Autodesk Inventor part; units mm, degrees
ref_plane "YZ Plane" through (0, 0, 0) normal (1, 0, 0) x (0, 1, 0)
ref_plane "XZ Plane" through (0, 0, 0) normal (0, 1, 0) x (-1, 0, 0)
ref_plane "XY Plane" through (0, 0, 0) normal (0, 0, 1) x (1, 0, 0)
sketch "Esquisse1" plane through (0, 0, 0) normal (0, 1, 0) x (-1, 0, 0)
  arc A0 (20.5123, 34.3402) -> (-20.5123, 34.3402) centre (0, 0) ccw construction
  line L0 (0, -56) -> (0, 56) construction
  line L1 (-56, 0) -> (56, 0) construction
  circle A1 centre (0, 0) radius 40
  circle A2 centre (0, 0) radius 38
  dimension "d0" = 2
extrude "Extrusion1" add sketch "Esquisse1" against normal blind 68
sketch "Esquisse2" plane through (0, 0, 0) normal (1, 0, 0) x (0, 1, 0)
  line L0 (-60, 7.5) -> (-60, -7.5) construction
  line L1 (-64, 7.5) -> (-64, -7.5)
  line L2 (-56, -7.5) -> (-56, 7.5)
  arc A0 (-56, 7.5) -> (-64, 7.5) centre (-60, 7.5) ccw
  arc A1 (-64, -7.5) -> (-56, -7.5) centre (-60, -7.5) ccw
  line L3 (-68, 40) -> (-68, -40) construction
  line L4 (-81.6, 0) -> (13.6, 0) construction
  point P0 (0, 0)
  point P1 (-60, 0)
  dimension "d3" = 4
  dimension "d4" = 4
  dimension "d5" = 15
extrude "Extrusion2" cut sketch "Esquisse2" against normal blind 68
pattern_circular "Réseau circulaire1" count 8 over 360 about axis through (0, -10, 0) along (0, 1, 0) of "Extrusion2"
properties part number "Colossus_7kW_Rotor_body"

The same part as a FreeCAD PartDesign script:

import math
import FreeCAD as App
import Part
import Sketcher

V = App.Vector
Q = App.Units.Quantity

doc = App.newDocument("Part")
body = doc.addObject("PartDesign::Body", "Body")

# Sketch on XZ plane
sketch1 = body.newObject("Sketcher::SketchObject", "Sketch")
sketch1.AttachmentSupport = (doc.getObject("XZ_Plane"), [""])
sketch1.MapMode = "FlatFace"
sketch1.addGeometry(Part.Circle(V(0, 0, 0), V(0, 0, 1), 40), False)
sketch1.addGeometry(Part.Circle(V(0, 0, 0), V(0, 0, 1), 38), False)
sketch1.addConstraint(Sketcher.Constraint("Coincident", 0, 3, -1, 1))
sketch1.addConstraint(Sketcher.Constraint("Coincident", 1, 3, -1, 1))
sketch1.addConstraint(Sketcher.Constraint("Diameter", 0, Q("80 mm")))
sketch1.addConstraint(Sketcher.Constraint("Diameter", 1, Q("76 mm")))
pad1 = body.newObject("PartDesign::Pad", "Pad")
pad1.Profile = sketch1
pad1.Length = 68

# Sketch on YZ plane
sketch2 = body.newObject("Sketcher::SketchObject", "Sketch001")
sketch2.AttachmentSupport = (doc.getObject("YZ_Plane"), [""])
sketch2.MapMode = "FlatFace"
sketch2.addGeometry(Part.ArcOfCircle(Part.Circle(V(-60, 7.5, 0), V(0, 0, 1), 4), math.radians(0), math.radians(180)), False)
sketch2.addGeometry(Part.LineSegment(V(-64, 7.5, 0), V(-64, -7.5, 0)), False)
sketch2.addGeometry(Part.ArcOfCircle(Part.Circle(V(-60, -7.5, 0), V(0, 0, 1), 4), math.radians(180), math.radians(360)), False)
sketch2.addGeometry(Part.LineSegment(V(-56, -7.5, 0), V(-56, 7.5, 0)), False)
sketch2.addConstraint(Sketcher.Constraint("Tangent", 0, 2, 1, 1))
sketch2.addConstraint(Sketcher.Constraint("Tangent", 1, 2, 2, 1))
sketch2.addConstraint(Sketcher.Constraint("Tangent", 2, 2, 3, 1))
sketch2.addConstraint(Sketcher.Constraint("Tangent", 3, 2, 0, 1))
sketch2.addConstraint(Sketcher.Constraint("Vertical", 1))
sketch2.addConstraint(Sketcher.Constraint("Vertical", 3))
sketch2.addConstraint(Sketcher.Constraint("Radius", 0, Q("4 mm")))
sketch2.addConstraint(Sketcher.Constraint("DistanceY", 1, 2, 1, 1, Q("15 mm")))
sketch2.addConstraint(Sketcher.Constraint("DistanceX", 0, 3, -1, 1, Q("60 mm")))
sketch2.addConstraint(Sketcher.Constraint("DistanceY", -1, 1, 0, 3, Q("7.5 mm")))
pocket1 = body.newObject("PartDesign::Pocket", "Pocket")
pocket1.Profile = sketch2
pocket1.Length = 68
doc.recompute()

polarpattern = body.newObject("PartDesign::PolarPattern", "PolarPattern")
polarpattern.Originals = [pocket1]
polarpattern.Axis = (doc.getObject("Y_Axis"), [""])
polarpattern.Angle = 360
polarpattern.Occurrences = 8
body.Tip = polarpattern

doc.recompute()
